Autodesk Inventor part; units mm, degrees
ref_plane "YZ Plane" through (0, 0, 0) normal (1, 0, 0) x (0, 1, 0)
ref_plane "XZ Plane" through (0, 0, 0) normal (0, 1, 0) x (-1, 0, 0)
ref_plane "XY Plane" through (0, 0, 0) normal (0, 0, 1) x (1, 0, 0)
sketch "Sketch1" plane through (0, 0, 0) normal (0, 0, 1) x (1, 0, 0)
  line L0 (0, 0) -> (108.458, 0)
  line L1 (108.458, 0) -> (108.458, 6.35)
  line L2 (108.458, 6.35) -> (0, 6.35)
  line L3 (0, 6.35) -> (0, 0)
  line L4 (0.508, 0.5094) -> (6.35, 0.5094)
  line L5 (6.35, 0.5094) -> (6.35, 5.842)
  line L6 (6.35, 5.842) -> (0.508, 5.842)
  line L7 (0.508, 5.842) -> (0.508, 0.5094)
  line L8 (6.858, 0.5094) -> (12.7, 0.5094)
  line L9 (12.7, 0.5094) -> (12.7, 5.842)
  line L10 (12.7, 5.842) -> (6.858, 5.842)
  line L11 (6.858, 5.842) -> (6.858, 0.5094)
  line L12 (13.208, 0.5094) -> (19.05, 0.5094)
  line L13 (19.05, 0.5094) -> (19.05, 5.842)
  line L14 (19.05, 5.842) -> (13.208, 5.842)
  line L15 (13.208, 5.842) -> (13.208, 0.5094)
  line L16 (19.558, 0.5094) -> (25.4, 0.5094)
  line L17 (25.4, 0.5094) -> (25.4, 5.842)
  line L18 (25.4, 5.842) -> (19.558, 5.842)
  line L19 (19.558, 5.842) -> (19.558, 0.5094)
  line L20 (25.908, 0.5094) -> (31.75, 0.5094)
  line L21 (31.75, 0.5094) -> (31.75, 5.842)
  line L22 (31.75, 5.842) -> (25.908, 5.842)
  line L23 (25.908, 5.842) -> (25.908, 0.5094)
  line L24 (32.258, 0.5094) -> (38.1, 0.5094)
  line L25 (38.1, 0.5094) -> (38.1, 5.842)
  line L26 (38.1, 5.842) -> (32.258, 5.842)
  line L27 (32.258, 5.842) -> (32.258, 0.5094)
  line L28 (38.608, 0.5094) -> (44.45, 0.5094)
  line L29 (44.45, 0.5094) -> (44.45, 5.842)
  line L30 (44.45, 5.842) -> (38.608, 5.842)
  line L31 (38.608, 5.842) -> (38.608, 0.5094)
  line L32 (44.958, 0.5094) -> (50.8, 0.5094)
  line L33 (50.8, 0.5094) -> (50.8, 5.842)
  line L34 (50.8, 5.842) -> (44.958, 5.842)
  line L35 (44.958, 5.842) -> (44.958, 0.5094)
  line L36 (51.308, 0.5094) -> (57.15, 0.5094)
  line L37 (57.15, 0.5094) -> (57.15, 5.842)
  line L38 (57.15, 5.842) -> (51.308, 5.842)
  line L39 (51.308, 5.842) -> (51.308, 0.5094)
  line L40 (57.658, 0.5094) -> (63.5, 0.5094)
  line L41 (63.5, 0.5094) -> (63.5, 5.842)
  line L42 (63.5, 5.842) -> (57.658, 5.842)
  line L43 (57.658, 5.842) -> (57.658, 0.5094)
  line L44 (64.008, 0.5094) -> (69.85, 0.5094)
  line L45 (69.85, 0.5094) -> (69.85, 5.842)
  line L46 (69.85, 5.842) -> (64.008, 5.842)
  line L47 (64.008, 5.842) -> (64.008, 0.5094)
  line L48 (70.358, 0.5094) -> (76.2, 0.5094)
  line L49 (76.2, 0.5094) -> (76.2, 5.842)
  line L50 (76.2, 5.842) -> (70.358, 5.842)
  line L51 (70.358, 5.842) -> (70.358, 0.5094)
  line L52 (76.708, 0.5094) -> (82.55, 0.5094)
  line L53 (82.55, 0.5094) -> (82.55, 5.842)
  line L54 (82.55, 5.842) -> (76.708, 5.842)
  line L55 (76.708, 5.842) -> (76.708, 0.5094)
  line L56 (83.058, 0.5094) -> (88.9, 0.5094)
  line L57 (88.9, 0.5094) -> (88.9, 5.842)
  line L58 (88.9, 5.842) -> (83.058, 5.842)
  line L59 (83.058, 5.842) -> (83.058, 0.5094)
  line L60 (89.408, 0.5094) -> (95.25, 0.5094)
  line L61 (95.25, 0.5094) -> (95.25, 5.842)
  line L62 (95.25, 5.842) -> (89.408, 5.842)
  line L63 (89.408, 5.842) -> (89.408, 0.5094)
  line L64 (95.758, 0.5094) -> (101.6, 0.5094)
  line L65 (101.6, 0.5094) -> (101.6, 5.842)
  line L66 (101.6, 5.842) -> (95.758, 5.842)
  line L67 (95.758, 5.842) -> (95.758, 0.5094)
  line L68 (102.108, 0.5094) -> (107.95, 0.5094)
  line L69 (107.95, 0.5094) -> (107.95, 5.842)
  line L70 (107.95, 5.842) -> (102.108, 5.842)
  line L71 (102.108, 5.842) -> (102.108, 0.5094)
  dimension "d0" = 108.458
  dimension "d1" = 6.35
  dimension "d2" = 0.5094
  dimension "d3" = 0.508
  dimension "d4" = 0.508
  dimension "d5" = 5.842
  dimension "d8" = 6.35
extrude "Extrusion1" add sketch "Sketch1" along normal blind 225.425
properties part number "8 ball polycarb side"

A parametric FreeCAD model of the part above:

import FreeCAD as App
import Part
import Sketcher
from FreeCAD import Vector
Q = App.Units.Quantity


def add_polygon(sketch, points):
    """Adds a closed chain of lines whose ends are joined by coincident constraints."""
    first, n = sketch.GeometryCount, len(points)
    for a, b in zip(points, points[1:] + points[:1]):
        sketch.addGeometry(Part.LineSegment(App.Vector(*a, 0), App.Vector(*b, 0)), False)
    for i in range(n):
        sketch.addConstraint(Sketcher.Constraint("Coincident", first + i, 2, first + (i + 1) % n, 1))

doc = App.newDocument("Part")
body = doc.addObject("PartDesign::Body", "Body")

# Sketch on XY plane
sketch1 = body.newObject("Sketcher::SketchObject", "Sketch")
sketch1.AttachmentSupport = (doc.getObject("XY_Plane"), [""])
sketch1.MapMode = "FlatFace"
add_polygon(sketch1, [(0, 6), (0, 0), (108, 0), (108, 6)])  # lines 0-3
add_polygon(sketch1, [(6, 1), (1, 1), (1, 6), (6, 6)])  # lines 4-7
add_polygon(sketch1, [(13, 1), (7, 1), (7, 6), (13, 6)])  # lines 8-11
add_polygon(sketch1, [(19, 1), (13, 1), (13, 6), (19, 6)])  # lines 12-15
add_polygon(sketch1, [(25, 1), (20, 1), (20, 6), (25, 6)])  # lines 16-19
add_polygon(sketch1, [(32, 1), (26, 1), (26, 6), (32, 6)])  # lines 20-23
add_polygon(sketch1, [(38, 1), (32, 1), (32, 6), (38, 6)])  # lines 24-27
add_polygon(sketch1, [(44, 1), (39, 1), (39, 6), (44, 6)])  # lines 28-31
add_polygon(sketch1, [(51, 1), (45, 1), (45, 6), (51, 6)])  # lines 32-35
add_polygon(sketch1, [(57, 1), (51, 1), (51, 6), (57, 6)])  # lines 36-39
add_polygon(sketch1, [(64, 1), (58, 1), (58, 6), (64, 6)])  # lines 40-43
add_polygon(sketch1, [(70, 1), (64, 1), (64, 6), (70, 6)])  # lines 44-47
add_polygon(sketch1, [(76, 1), (70, 1), (70, 6), (76, 6)])  # lines 48-51
add_polygon(sketch1, [(83, 1), (77, 1), (77, 6), (83, 6)])  # lines 52-55
add_polygon(sketch1, [(89, 1), (83, 1), (83, 6), (89, 6)])  # lines 56-59
add_polygon(sketch1, [(95, 1), (89, 1), (89, 6), (95, 6)])  # lines 60-63
add_polygon(sketch1, [(102, 1), (96, 1), (96, 6), (102, 6)])  # lines 64-67
add_polygon(sketch1, [(108, 1), (102, 1), (102, 6), (108, 6)])  # lines 68-71
sketch1.addConstraint([
    Sketcher.Constraint("Vertical", 0),
    Sketcher.Constraint("Horizontal", 1),
    Sketcher.Constraint("Vertical", 2),
    Sketcher.Constraint("Horizontal", 3),
    Sketcher.Constraint("Horizontal", 4),
    Sketcher.Constraint("Vertical", 5),
    Sketcher.Constraint("Horizontal", 6),
    Sketcher.Constraint("Vertical", 7),
    Sketcher.Constraint("Horizontal", 8),
    Sketcher.Constraint("Vertical", 9),
    Sketcher.Constraint("Horizontal", 10),
    Sketcher.Constraint("Vertical", 11),
    Sketcher.Constraint("Horizontal", 12),
    Sketcher.Constraint("Vertical", 13),
    Sketcher.Constraint("Horizontal", 14),
    Sketcher.Constraint("Vertical", 15),
    Sketcher.Constraint("Horizontal", 16),
    Sketcher.Constraint("Vertical", 17),
    Sketcher.Constraint("Horizontal", 18),
    Sketcher.Constraint("Vertical", 19),
    Sketcher.Constraint("Horizontal", 20),
    Sketcher.Constraint("Vertical", 21),
    Sketcher.Constraint("Horizontal", 22),
    Sketcher.Constraint("Vertical", 23),
    Sketcher.Constraint("Horizontal", 24),
    Sketcher.Constraint("Vertical", 25),
    Sketcher.Constraint("Horizontal", 26),
    Sketcher.Constraint("Vertical", 27),
    Sketcher.Constraint("Horizontal", 28),
    Sketcher.Constraint("Vertical", 29),
    Sketcher.Constraint("Horizontal", 30),
    Sketcher.Constraint("Vertical", 31),
    Sketcher.Constraint("Horizontal", 32),
    Sketcher.Constraint("Vertical", 33),
    Sketcher.Constraint("Horizontal", 34),
    Sketcher.Constraint("Vertical", 35),
    Sketcher.Constraint("Horizontal", 36),
    Sketcher.Constraint("Vertical", 37),
    Sketcher.Constraint("Horizontal", 38),
    Sketcher.Constraint("Vertical", 39),
    Sketcher.Constraint("Horizontal", 40),
    Sketcher.Constraint("Vertical", 41),
    Sketcher.Constraint("Horizontal", 42),
    Sketcher.Constraint("Vertical", 43),
    Sketcher.Constraint("Horizontal", 44),
    Sketcher.Constraint("Vertical", 45),
    Sketcher.Constraint("Horizontal", 46),
    Sketcher.Constraint("Vertical", 47),
    Sketcher.Constraint("Horizontal", 48),
    Sketcher.Constraint("Vertical", 49),
    Sketcher.Constraint("Horizontal", 50),
    Sketcher.Constraint("Vertical", 51),
    Sketcher.Constraint("Horizontal", 52),
    Sketcher.Constraint("Vertical", 53),
    Sketcher.Constraint("Horizontal", 54),
    Sketcher.Constraint("Vertical", 55),
    Sketcher.Constraint("Horizontal", 56),
    Sketcher.Constraint("Vertical", 57),
    Sketcher.Constraint("Horizontal", 58),
    Sketcher.Constraint("Vertical", 59),
    Sketcher.Constraint("Horizontal", 60),
    Sketcher.Constraint("Vertical", 61),
    Sketcher.Constraint("Horizontal", 62),
    Sketcher.Constraint("Vertical", 63),
    Sketcher.Constraint("Horizontal", 64),
    Sketcher.Constraint("Vertical", 65),
    Sketcher.Constraint("Horizontal", 66),
    Sketcher.Constraint("Vertical", 67),
    Sketcher.Constraint("Horizontal", 68),
    Sketcher.Constraint("Vertical", 69),
    Sketcher.Constraint("Horizontal", 70),
    Sketcher.Constraint("Vertical", 71),
    Sketcher.Constraint("Coincident", 0, 2, -1, 1),
    Sketcher.Constraint("Horizontal", 7, 2, 8, 2),
    Sketcher.Constraint("Horizontal", 6, 2, 9, 2),
    Sketcher.Constraint("Horizontal", 11, 2, 12, 2),
    Sketcher.Constraint("Horizontal", 10, 2, 13, 2),
    Sketcher.Constraint("Horizontal", 15, 2, 16, 2),
    Sketcher.Constraint("Horizontal", 14, 2, 17, 2),
    Sketcher.Constraint("Horizontal", 19, 2, 20, 2),
    Sketcher.Constraint("Horizontal", 18, 2, 21, 2),
    Sketcher.Constraint("Horizontal", 23, 2, 24, 2),
    Sketcher.Constraint("Horizontal", 22, 2, 25, 2),
    Sketcher.Constraint("Horizontal", 27, 2, 28, 2),
    Sketcher.Constraint("Horizontal", 26, 2, 29, 2),
    Sketcher.Constraint("Horizontal", 31, 2, 32, 2),
    Sketcher.Constraint("Horizontal", 30, 2, 33, 2),
    Sketcher.Constraint("Horizontal", 35, 2, 36, 2),
    Sketcher.Constraint("Horizontal", 34, 2, 37, 2),
    Sketcher.Constraint("Horizontal", 39, 2, 40, 2),
    Sketcher.Constraint("Horizontal", 38, 2, 41, 2),
    Sketcher.Constraint("Horizontal", 43, 2, 44, 2),
    Sketcher.Constraint("Horizontal", 42, 2, 45, 2),
    Sketcher.Constraint("Horizontal", 47, 2, 48, 2),
    Sketcher.Constraint("Horizontal", 46, 2, 49, 2),
    Sketcher.Constraint("Horizontal", 51, 2, 52, 2),
    Sketcher.Constraint("Horizontal", 50, 2, 53, 2),
    Sketcher.Constraint("Horizontal", 55, 2, 56, 2),
    Sketcher.Constraint("Horizontal", 54, 2, 57, 2),
    Sketcher.Constraint("Horizontal", 59, 2, 60, 2),
    Sketcher.Constraint("Horizontal", 58, 2, 61, 2),
    Sketcher.Constraint("Horizontal", 63, 2, 64, 2),
    Sketcher.Constraint("Horizontal", 62, 2, 65, 2),
    Sketcher.Constraint("Horizontal", 67, 2, 68, 2),
    Sketcher.Constraint("Horizontal", 66, 2, 69, 2),
    Sketcher.Constraint("Equal", 6, 8),
    Sketcher.Constraint("Equal", 10, 12),
    Sketcher.Constraint("Equal", 14, 16),
    Sketcher.Constraint("Equal", 18, 20),
    Sketcher.Constraint("Equal", 22, 24),
    Sketcher.Constraint("Equal", 26, 28),
    Sketcher.Constraint("Equal", 30, 32),
    Sketcher.Constraint("Equal", 34, 36),
    Sketcher.Constraint("Equal", 38, 40),
    Sketcher.Constraint("Equal", 42, 44),
    Sketcher.Constraint("Equal", 46, 48),
    Sketcher.Constraint("Equal", 50, 52),
    Sketcher.Constraint("Equal", 54, 56),
    Sketcher.Constraint("Equal", 58, 60),
    Sketcher.Constraint("Equal", 62, 64),
    Sketcher.Constraint("Equal", 66, 68),
    Sketcher.Constraint("DistanceX", 1, 1, 1, 2, Q("4.27 in")),
    Sketcher.Constraint("DistanceX", 4, 2, 4, 1, Q("0.23 in")),
    Sketcher.Constraint("DistanceY", 0, 2, 0, 1, Q("0.25 in")),
    Sketcher.Constraint("DistanceX", -1, 1, 4, 2, Q("0.02 in")),
    Sketcher.Constraint("DistanceY", -1, 1, 5, 2, Q("0.23 in")),
    Sketcher.Constraint("DistanceX", -1, 1, 18, 2, Q("1 in")),
    Sketcher.Constraint("DistanceX", -1, 1, 34, 2, Q("2 in")),
    Sketcher.Constraint("DistanceX", -1, 1, 50, 2, Q("3 in")),
    Sketcher.Constraint("DistanceX", -1, 1, 66, 2, Q("4 in")),
    Sketcher.Constraint("DistanceX", -1, 1, 10, 2, Q("0.5 in")),
    Sketcher.Constraint("DistanceX", -1, 1, 26, 2, Q("1.5 in")),
    Sketcher.Constraint("DistanceX", -1, 1, 42, 2, Q("2.5 in")),
    Sketcher.Constraint("DistanceX", -1, 1, 58, 2, Q("3.5 in")),
    Sketcher.Constraint("DistanceY", -1, 1, 4, 2, 0.5094),
    Sketcher.Constraint("DistanceX", -1, 1, 12, 2, Q("0.52 in")),
    Sketcher.Constraint("DistanceX", -1, 1, 20, 2, Q("1.02 in")),
    Sketcher.Constraint("DistanceX", -1, 1, 28, 2, Q("1.52 in")),
    Sketcher.Constraint("DistanceX", -1, 1, 36, 2, Q("2.02 in")),
    Sketcher.Constraint("DistanceX", -1, 1, 44, 2, Q("2.52 in")),
    Sketcher.Constraint("DistanceX", -1, 1, 52, 2, Q("3.02 in")),
    Sketcher.Constraint("DistanceX", -1, 1, 60, 2, Q("3.52 in")),
    Sketcher.Constraint("DistanceX", -1, 1, 68, 2, Q("4.02 in")),
])
pad1 = body.newObject("PartDesign::Pad", "Pad")
pad1.Profile = sketch1
pad1.Length = Q("8.875 in")

doc.recompute()
